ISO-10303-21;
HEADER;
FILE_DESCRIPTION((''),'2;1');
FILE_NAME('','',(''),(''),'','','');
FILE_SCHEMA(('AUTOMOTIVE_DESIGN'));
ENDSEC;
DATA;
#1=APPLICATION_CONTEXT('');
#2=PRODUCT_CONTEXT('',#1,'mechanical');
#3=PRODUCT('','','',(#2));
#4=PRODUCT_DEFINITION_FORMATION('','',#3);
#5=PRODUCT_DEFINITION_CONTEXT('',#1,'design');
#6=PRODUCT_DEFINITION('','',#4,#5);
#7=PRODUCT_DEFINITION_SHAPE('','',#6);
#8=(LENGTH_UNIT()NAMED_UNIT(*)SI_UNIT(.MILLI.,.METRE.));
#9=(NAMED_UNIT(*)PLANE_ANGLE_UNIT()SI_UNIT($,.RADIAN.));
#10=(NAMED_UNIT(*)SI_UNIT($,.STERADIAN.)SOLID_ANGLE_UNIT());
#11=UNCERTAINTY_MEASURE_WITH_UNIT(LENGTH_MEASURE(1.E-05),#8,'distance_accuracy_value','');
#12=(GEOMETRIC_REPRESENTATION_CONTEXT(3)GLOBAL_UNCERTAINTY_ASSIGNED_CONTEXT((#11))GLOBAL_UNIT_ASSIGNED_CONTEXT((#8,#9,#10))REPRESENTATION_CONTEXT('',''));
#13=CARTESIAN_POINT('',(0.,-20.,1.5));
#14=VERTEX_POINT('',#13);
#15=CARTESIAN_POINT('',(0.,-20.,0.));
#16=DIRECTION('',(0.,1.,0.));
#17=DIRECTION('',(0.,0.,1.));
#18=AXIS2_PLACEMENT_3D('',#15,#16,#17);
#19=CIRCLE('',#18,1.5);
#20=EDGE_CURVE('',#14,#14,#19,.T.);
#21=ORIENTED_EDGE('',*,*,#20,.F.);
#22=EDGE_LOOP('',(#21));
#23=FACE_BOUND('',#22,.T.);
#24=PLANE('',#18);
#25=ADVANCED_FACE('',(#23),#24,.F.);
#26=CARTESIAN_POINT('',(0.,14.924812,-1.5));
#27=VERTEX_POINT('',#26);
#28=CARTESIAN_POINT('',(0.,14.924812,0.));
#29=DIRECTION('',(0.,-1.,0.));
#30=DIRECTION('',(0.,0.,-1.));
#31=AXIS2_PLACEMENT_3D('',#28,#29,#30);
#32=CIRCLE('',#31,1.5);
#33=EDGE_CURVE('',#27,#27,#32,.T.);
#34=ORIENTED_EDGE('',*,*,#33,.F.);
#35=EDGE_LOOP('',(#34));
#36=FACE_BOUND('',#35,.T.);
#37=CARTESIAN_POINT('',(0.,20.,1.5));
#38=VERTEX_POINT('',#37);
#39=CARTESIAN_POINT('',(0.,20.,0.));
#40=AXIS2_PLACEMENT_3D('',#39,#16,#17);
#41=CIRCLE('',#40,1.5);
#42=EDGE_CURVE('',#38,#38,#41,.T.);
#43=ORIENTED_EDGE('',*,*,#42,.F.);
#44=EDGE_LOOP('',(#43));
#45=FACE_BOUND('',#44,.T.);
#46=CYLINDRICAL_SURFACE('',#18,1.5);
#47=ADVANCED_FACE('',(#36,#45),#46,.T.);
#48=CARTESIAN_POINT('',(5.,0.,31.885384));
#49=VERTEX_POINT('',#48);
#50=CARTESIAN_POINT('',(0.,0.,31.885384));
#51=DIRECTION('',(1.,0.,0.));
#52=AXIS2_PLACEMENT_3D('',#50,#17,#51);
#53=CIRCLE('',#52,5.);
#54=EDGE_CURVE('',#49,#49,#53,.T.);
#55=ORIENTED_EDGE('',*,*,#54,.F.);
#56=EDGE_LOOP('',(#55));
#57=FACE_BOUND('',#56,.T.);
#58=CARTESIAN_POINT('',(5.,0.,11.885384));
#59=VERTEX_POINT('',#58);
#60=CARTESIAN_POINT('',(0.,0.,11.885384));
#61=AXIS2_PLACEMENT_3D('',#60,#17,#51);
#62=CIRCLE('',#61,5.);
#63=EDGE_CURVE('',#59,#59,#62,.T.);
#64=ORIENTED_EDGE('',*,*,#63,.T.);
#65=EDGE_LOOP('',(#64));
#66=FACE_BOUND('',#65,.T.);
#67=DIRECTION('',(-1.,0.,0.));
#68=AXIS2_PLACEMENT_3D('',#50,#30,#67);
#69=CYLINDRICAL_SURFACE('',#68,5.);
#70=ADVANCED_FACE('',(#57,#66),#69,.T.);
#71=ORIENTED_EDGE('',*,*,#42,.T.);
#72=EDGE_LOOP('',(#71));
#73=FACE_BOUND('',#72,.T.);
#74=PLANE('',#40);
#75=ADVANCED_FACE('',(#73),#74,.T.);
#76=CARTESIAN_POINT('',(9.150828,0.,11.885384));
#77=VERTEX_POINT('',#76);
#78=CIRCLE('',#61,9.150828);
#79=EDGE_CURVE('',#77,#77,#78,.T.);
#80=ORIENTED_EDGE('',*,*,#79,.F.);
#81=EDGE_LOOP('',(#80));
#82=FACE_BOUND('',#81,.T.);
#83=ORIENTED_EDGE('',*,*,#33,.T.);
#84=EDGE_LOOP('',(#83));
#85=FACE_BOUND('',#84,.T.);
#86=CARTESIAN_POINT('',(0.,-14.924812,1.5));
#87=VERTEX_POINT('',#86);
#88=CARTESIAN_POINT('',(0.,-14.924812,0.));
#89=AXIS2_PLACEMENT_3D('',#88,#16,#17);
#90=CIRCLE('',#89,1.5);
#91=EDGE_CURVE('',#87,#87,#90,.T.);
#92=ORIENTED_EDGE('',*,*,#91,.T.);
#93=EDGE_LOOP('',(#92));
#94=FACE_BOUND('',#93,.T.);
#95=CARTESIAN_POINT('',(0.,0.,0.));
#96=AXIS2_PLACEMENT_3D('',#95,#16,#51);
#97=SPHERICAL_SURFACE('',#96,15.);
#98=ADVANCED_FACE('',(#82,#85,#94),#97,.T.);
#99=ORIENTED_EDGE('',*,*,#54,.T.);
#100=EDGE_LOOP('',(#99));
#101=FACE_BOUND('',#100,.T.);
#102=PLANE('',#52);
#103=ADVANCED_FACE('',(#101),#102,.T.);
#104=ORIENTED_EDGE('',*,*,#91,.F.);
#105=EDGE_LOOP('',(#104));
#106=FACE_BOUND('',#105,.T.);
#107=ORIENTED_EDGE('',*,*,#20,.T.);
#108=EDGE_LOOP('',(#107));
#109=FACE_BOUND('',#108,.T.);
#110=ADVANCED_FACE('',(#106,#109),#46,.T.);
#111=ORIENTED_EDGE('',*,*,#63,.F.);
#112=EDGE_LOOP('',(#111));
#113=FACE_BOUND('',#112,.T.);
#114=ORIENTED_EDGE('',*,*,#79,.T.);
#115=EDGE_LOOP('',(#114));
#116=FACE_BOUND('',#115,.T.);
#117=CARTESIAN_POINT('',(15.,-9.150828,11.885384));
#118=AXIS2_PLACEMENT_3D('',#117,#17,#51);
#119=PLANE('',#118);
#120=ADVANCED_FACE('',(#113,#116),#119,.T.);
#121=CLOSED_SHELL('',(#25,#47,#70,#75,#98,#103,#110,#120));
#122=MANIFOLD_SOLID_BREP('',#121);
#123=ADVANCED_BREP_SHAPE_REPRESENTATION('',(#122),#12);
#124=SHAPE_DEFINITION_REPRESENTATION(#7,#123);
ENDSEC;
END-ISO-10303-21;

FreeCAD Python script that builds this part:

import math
import FreeCAD as App
import Part
import Sketcher
from FreeCAD import Vector
Q = App.Units.Quantity

doc = App.newDocument("Part")
params = doc.addObject("Spreadsheet::Sheet", "Params")
for row, (alias, value) in enumerate([
    ("sketch1_radius", "15 mm"),
    ("revolution_angle", "360 deg"),
    ("sketch3_diameter", "3 mm"),
    ("pad1_length", "20 mm"),
    ("pad1_length2", "20 mm"),
    ("sketch4_diameter", "10 mm"),
    ("pad2_length", "20 mm"),
], start=1):
    params.set(f"A{row}", alias)
    params.set(f"B{row}", "=" + value)
    params.setAlias(f"B{row}", alias)

body = doc.addObject("PartDesign::Body", "Body")

# Sketch on XY plane
sketch1 = body.newObject("Sketcher::SketchObject", "Sketch")
sketch1.AttachmentSupport = (doc.getObject("XY_Plane"), [""])
sketch1.MapMode = "FlatFace"
sketch1.addGeometry([
    Part.LineSegment(Vector(0, 15, 0), Vector(0, -15, 0)),
    Part.ArcOfCircle(Part.Circle(Vector(0, 0, 0), Vector(0, 0, 1), 15), math.radians(-90), math.radians(90)),
], False)
sketch1.addConstraint([
    Sketcher.Constraint("Coincident", 0, 1, 1, 2),
    Sketcher.Constraint("Coincident", 1, 1, 0, 2),
    Sketcher.Constraint("Vertical", 0),
    Sketcher.Constraint("Coincident", 1, 3, -1, 1),
    Sketcher.Constraint("PointOnObject", 0, 1, -2),
    Sketcher.Constraint("Radius", 1, Q("15 mm")),
])
sketch1.setExpression("Constraints[5]", "Params.sketch1_radius")
revolution = body.newObject("PartDesign::Revolution", "Revolution")
revolution.Profile = sketch1
revolution.ReferenceAxis = (sketch1, ["V_Axis"])
revolution.setExpression("Angle", "Params.revolution_angle")

# Sketch on YZ plane
sketch2 = body.newObject("Sketcher::SketchObject", "Sketch001")
sketch2.AttachmentSupport = (doc.getObject("YZ_Plane"), [""])
sketch2.MapMode = "FlatFace"
sketch2.addGeometry([
    Part.LineSegment(Vector(9, 18, 0), Vector(-9, 18, 0)),
    Part.LineSegment(Vector(-9, 18, 0), Vector(-9, 12, 0)),
    Part.LineSegment(Vector(-9, 12, 0), Vector(9, 12, 0)),
    Part.LineSegment(Vector(9, 12, 0), Vector(9, 18, 0)),
], False)
sketch2.addConstraint([
    Sketcher.Constraint("Coincident", 0, 2, 1, 1),
    Sketcher.Constraint("Coincident", 1, 2, 2, 1),
    Sketcher.Constraint("Coincident", 2, 2, 3, 1),
    Sketcher.Constraint("Coincident", 3, 2, 0, 1),
    Sketcher.Constraint("Horizontal", 0),
    Sketcher.Constraint("Vertical", 1),
    Sketcher.Constraint("Horizontal", 2),
    Sketcher.Constraint("Vertical", 3),
    Sketcher.Constraint("DistanceX", 0, 2, 0, 1, Q("18.301656 mm")),
    Sketcher.Constraint("DistanceY", 1, 2, 1, 1, Q("6.229233 mm")),
    Sketcher.Constraint("DistanceX", 0, 2, -1, 1, Q("9.150828 mm")),
    Sketcher.Constraint("DistanceY", -1, 1, 0, 2, Q("18.114616 mm")),
])
pocket1 = body.newObject("PartDesign::Pocket", "Pocket")
pocket1.Profile = sketch2
pocket1.Type = "ThroughAll"
pocket1.Midplane = True

# Sketch on XZ plane
sketch3 = body.newObject("Sketcher::SketchObject", "Sketch002")
sketch3.AttachmentSupport = (doc.getObject("XZ_Plane"), [""])
sketch3.MapMode = "FlatFace"
sketch3.addGeometry(Part.Circle(Vector(0, 0, 0), Vector(0, 0, 1), 1.5), False)
sketch3.addConstraint([
    Sketcher.Constraint("Coincident", 0, 3, -1, 1),
    Sketcher.Constraint("Diameter", 0, Q("3 mm")),
])
sketch3.setExpression("Constraints[1]", "Params.sketch3_diameter")
pad1 = body.newObject("PartDesign::Pad", "Pad")
pad1.Profile = sketch3
pad1.Type = "TwoLengths"
pad1.setExpression("Length", "Params.pad1_length")
pad1.setExpression("Length2", "Params.pad1_length2")
pad1.Reversed = True

# Sketch on XY plane
sketch4 = body.newObject("Sketcher::SketchObject", "Sketch003")
sketch4.AttachmentSupport = (doc.getObject("XY_Plane"), [""])
sketch4.MapMode = "FlatFace"
sketch4.AttachmentOffset = App.Placement(Vector(0, 0, 11.885384), App.Rotation())
sketch4.addGeometry(Part.Circle(Vector(0, 0, 0), Vector(0, 0, 1), 5), False)
sketch4.addConstraint([
    Sketcher.Constraint("Coincident", 0, 3, -1, 1),
    Sketcher.Constraint("Diameter", 0, Q("10 mm")),
])
sketch4.setExpression("Constraints[1]", "Params.sketch4_diameter")
pad2 = body.newObject("PartDesign::Pad", "Pad001")
pad2.Profile = sketch4
pad2.setExpression("Length", "Params.pad2_length")

doc.recompute()
